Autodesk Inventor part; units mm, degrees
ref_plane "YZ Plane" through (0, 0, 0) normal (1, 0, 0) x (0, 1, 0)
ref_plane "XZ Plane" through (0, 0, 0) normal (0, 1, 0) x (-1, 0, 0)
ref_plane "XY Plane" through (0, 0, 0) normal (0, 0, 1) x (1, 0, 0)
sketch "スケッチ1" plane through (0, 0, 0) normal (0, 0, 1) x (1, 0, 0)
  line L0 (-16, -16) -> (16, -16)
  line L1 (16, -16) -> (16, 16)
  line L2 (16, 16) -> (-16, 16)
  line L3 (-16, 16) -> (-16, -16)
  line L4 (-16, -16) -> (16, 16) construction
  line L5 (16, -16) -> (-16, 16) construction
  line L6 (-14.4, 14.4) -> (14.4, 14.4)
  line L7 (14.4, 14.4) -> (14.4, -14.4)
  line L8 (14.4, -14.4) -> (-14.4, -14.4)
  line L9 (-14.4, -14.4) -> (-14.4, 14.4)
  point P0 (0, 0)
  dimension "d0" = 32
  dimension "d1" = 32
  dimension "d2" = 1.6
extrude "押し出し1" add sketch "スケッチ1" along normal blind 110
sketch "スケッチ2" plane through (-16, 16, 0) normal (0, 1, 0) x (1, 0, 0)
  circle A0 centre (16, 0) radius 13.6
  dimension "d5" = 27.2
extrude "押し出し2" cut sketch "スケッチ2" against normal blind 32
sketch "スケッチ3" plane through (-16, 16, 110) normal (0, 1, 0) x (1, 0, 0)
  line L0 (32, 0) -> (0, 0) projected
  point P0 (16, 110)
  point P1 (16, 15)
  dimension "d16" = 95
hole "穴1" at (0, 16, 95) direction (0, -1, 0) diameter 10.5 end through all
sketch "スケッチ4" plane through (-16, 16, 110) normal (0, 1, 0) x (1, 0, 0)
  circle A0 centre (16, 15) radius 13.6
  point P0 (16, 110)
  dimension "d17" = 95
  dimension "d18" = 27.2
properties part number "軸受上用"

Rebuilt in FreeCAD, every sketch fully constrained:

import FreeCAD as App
import Part
import Sketcher
from FreeCAD import Vector

doc = App.newDocument("Part")
body = doc.addObject("PartDesign::Body", "Body")

sketch1 = body.newObject("Sketcher::SketchObject", "Sketch")
sketch1.AttachmentSupport = (doc.getObject("XY_Plane"), [""])
sketch1.MapMode = "FlatFace"
sketch1.addGeometry(Part.LineSegment(Vector(-16, 16, 0), Vector(-16, -16, 0)), False)
sketch1.addGeometry(Part.LineSegment(Vector(-16, -16, 0), Vector(16, -16, 0)), False)
sketch1.addGeometry(Part.LineSegment(Vector(16, -16, 0), Vector(16, 16, 0)), False)
sketch1.addGeometry(Part.LineSegment(Vector(16, 16, 0), Vector(-16, 16, 0)), False)
sketch1.addGeometry(Part.LineSegment(Vector(-14, -14, 0), Vector(-14, 14, 0)), False)
sketch1.addGeometry(Part.LineSegment(Vector(-14, 14, 0), Vector(14, 14, 0)), False)
sketch1.addGeometry(Part.LineSegment(Vector(14, 14, 0), Vector(14, -14, 0)), False)
sketch1.addGeometry(Part.LineSegment(Vector(14, -14, 0), Vector(-14, -14, 0)), False)
sketch1.addConstraint(Sketcher.Constraint("Coincident", 0, 2, 1, 1))
sketch1.addConstraint(Sketcher.Constraint("Coincident", 1, 2, 2, 1))
sketch1.addConstraint(Sketcher.Constraint("Coincident", 2, 2, 3, 1))
sketch1.addConstraint(Sketcher.Constraint("Coincident", 3, 2, 0, 1))
sketch1.addConstraint(Sketcher.Constraint("Coincident", 4, 2, 5, 1))
sketch1.addConstraint(Sketcher.Constraint("Coincident", 5, 2, 6, 1))
sketch1.addConstraint(Sketcher.Constraint("Coincident", 6, 2, 7, 1))
sketch1.addConstraint(Sketcher.Constraint("Coincident", 7, 2, 4, 1))
sketch1.addConstraint(Sketcher.Constraint("Vertical", 0))
sketch1.addConstraint(Sketcher.Constraint("Horizontal", 1))
sketch1.addConstraint(Sketcher.Constraint("Vertical", 2))
sketch1.addConstraint(Sketcher.Constraint("Horizontal", 3))
sketch1.addConstraint(Sketcher.Constraint("Vertical", 4))
sketch1.addConstraint(Sketcher.Constraint("Horizontal", 5))
sketch1.addConstraint(Sketcher.Constraint("Vertical", 6))
sketch1.addConstraint(Sketcher.Constraint("Horizontal", 7))
sketch1.addConstraint(Sketcher.Constraint("Symmetric", 0, 2, 2, 2, -1, 1))
sketch1.addConstraint(Sketcher.Constraint("Symmetric", 4, 2, 6, 2, -1, 1))
sketch1.addConstraint(Sketcher.Constraint("Equal", 3, 0))
sketch1.addConstraint(Sketcher.Constraint("Equal", 7, 4))
sketch1.addConstraint(Sketcher.Constraint("DistanceX", 1, 1, 1, 2, 32.0))
sketch1.addConstraint(Sketcher.Constraint("DistanceX", 3, 2, 4, 2, 1.6))
pad1 = body.newObject("PartDesign::Pad", "Pad")
pad1.Profile = sketch1
pad1.Length = 110

sketch2 = body.newObject("Sketcher::SketchObject", "Sketch001")
sketch2.AttachmentSupport = (doc.getObject("XZ_Plane"), [""])
sketch2.MapMode = "FlatFace"
sketch2.AttachmentOffset = App.Placement(Vector(0, 0, -16), App.Rotation())
sketch2.addGeometry(Part.Circle(Vector(0, 0, 0), Vector(0, 0, 1), 14), False)
sketch2.addConstraint(Sketcher.Constraint("Coincident", 0, 3, -1, 1))
sketch2.addConstraint(Sketcher.Constraint("Diameter", 0, 27.2))
pocket1 = body.newObject("PartDesign::Pocket", "Pocket")
pocket1.Profile = sketch2
pocket1.Length = 32
pocket1.Reversed = True

sketch3 = body.newObject("Sketcher::SketchObject", "Sketch002")
sketch3.AttachmentSupport = (doc.getObject("XZ_Plane"), [""])
sketch3.MapMode = "FlatFace"
sketch3.AttachmentOffset = App.Placement(Vector(0, 0, -16), App.Rotation())
sketch3.addGeometry(Part.Circle(Vector(0, 95, 0), Vector(0, 0, 1), 5), False)
sketch3.addConstraint(Sketcher.Constraint("PointOnObject", 0, 3, -2))
sketch3.addConstraint(Sketcher.Constraint("Diameter", 0, 10.5))
sketch3.addConstraint(Sketcher.Constraint("DistanceY", -1, 1, 0, 3, 95.0))
doc.recompute()
hole = body.newObject("PartDesign::Hole", "Hole")
hole.Profile = sketch3
hole.ThreadType = "None"
hole.Diameter = 10.5
hole.DepthType = "ThroughAll"
hole.Reversed = True

doc.recompute()
